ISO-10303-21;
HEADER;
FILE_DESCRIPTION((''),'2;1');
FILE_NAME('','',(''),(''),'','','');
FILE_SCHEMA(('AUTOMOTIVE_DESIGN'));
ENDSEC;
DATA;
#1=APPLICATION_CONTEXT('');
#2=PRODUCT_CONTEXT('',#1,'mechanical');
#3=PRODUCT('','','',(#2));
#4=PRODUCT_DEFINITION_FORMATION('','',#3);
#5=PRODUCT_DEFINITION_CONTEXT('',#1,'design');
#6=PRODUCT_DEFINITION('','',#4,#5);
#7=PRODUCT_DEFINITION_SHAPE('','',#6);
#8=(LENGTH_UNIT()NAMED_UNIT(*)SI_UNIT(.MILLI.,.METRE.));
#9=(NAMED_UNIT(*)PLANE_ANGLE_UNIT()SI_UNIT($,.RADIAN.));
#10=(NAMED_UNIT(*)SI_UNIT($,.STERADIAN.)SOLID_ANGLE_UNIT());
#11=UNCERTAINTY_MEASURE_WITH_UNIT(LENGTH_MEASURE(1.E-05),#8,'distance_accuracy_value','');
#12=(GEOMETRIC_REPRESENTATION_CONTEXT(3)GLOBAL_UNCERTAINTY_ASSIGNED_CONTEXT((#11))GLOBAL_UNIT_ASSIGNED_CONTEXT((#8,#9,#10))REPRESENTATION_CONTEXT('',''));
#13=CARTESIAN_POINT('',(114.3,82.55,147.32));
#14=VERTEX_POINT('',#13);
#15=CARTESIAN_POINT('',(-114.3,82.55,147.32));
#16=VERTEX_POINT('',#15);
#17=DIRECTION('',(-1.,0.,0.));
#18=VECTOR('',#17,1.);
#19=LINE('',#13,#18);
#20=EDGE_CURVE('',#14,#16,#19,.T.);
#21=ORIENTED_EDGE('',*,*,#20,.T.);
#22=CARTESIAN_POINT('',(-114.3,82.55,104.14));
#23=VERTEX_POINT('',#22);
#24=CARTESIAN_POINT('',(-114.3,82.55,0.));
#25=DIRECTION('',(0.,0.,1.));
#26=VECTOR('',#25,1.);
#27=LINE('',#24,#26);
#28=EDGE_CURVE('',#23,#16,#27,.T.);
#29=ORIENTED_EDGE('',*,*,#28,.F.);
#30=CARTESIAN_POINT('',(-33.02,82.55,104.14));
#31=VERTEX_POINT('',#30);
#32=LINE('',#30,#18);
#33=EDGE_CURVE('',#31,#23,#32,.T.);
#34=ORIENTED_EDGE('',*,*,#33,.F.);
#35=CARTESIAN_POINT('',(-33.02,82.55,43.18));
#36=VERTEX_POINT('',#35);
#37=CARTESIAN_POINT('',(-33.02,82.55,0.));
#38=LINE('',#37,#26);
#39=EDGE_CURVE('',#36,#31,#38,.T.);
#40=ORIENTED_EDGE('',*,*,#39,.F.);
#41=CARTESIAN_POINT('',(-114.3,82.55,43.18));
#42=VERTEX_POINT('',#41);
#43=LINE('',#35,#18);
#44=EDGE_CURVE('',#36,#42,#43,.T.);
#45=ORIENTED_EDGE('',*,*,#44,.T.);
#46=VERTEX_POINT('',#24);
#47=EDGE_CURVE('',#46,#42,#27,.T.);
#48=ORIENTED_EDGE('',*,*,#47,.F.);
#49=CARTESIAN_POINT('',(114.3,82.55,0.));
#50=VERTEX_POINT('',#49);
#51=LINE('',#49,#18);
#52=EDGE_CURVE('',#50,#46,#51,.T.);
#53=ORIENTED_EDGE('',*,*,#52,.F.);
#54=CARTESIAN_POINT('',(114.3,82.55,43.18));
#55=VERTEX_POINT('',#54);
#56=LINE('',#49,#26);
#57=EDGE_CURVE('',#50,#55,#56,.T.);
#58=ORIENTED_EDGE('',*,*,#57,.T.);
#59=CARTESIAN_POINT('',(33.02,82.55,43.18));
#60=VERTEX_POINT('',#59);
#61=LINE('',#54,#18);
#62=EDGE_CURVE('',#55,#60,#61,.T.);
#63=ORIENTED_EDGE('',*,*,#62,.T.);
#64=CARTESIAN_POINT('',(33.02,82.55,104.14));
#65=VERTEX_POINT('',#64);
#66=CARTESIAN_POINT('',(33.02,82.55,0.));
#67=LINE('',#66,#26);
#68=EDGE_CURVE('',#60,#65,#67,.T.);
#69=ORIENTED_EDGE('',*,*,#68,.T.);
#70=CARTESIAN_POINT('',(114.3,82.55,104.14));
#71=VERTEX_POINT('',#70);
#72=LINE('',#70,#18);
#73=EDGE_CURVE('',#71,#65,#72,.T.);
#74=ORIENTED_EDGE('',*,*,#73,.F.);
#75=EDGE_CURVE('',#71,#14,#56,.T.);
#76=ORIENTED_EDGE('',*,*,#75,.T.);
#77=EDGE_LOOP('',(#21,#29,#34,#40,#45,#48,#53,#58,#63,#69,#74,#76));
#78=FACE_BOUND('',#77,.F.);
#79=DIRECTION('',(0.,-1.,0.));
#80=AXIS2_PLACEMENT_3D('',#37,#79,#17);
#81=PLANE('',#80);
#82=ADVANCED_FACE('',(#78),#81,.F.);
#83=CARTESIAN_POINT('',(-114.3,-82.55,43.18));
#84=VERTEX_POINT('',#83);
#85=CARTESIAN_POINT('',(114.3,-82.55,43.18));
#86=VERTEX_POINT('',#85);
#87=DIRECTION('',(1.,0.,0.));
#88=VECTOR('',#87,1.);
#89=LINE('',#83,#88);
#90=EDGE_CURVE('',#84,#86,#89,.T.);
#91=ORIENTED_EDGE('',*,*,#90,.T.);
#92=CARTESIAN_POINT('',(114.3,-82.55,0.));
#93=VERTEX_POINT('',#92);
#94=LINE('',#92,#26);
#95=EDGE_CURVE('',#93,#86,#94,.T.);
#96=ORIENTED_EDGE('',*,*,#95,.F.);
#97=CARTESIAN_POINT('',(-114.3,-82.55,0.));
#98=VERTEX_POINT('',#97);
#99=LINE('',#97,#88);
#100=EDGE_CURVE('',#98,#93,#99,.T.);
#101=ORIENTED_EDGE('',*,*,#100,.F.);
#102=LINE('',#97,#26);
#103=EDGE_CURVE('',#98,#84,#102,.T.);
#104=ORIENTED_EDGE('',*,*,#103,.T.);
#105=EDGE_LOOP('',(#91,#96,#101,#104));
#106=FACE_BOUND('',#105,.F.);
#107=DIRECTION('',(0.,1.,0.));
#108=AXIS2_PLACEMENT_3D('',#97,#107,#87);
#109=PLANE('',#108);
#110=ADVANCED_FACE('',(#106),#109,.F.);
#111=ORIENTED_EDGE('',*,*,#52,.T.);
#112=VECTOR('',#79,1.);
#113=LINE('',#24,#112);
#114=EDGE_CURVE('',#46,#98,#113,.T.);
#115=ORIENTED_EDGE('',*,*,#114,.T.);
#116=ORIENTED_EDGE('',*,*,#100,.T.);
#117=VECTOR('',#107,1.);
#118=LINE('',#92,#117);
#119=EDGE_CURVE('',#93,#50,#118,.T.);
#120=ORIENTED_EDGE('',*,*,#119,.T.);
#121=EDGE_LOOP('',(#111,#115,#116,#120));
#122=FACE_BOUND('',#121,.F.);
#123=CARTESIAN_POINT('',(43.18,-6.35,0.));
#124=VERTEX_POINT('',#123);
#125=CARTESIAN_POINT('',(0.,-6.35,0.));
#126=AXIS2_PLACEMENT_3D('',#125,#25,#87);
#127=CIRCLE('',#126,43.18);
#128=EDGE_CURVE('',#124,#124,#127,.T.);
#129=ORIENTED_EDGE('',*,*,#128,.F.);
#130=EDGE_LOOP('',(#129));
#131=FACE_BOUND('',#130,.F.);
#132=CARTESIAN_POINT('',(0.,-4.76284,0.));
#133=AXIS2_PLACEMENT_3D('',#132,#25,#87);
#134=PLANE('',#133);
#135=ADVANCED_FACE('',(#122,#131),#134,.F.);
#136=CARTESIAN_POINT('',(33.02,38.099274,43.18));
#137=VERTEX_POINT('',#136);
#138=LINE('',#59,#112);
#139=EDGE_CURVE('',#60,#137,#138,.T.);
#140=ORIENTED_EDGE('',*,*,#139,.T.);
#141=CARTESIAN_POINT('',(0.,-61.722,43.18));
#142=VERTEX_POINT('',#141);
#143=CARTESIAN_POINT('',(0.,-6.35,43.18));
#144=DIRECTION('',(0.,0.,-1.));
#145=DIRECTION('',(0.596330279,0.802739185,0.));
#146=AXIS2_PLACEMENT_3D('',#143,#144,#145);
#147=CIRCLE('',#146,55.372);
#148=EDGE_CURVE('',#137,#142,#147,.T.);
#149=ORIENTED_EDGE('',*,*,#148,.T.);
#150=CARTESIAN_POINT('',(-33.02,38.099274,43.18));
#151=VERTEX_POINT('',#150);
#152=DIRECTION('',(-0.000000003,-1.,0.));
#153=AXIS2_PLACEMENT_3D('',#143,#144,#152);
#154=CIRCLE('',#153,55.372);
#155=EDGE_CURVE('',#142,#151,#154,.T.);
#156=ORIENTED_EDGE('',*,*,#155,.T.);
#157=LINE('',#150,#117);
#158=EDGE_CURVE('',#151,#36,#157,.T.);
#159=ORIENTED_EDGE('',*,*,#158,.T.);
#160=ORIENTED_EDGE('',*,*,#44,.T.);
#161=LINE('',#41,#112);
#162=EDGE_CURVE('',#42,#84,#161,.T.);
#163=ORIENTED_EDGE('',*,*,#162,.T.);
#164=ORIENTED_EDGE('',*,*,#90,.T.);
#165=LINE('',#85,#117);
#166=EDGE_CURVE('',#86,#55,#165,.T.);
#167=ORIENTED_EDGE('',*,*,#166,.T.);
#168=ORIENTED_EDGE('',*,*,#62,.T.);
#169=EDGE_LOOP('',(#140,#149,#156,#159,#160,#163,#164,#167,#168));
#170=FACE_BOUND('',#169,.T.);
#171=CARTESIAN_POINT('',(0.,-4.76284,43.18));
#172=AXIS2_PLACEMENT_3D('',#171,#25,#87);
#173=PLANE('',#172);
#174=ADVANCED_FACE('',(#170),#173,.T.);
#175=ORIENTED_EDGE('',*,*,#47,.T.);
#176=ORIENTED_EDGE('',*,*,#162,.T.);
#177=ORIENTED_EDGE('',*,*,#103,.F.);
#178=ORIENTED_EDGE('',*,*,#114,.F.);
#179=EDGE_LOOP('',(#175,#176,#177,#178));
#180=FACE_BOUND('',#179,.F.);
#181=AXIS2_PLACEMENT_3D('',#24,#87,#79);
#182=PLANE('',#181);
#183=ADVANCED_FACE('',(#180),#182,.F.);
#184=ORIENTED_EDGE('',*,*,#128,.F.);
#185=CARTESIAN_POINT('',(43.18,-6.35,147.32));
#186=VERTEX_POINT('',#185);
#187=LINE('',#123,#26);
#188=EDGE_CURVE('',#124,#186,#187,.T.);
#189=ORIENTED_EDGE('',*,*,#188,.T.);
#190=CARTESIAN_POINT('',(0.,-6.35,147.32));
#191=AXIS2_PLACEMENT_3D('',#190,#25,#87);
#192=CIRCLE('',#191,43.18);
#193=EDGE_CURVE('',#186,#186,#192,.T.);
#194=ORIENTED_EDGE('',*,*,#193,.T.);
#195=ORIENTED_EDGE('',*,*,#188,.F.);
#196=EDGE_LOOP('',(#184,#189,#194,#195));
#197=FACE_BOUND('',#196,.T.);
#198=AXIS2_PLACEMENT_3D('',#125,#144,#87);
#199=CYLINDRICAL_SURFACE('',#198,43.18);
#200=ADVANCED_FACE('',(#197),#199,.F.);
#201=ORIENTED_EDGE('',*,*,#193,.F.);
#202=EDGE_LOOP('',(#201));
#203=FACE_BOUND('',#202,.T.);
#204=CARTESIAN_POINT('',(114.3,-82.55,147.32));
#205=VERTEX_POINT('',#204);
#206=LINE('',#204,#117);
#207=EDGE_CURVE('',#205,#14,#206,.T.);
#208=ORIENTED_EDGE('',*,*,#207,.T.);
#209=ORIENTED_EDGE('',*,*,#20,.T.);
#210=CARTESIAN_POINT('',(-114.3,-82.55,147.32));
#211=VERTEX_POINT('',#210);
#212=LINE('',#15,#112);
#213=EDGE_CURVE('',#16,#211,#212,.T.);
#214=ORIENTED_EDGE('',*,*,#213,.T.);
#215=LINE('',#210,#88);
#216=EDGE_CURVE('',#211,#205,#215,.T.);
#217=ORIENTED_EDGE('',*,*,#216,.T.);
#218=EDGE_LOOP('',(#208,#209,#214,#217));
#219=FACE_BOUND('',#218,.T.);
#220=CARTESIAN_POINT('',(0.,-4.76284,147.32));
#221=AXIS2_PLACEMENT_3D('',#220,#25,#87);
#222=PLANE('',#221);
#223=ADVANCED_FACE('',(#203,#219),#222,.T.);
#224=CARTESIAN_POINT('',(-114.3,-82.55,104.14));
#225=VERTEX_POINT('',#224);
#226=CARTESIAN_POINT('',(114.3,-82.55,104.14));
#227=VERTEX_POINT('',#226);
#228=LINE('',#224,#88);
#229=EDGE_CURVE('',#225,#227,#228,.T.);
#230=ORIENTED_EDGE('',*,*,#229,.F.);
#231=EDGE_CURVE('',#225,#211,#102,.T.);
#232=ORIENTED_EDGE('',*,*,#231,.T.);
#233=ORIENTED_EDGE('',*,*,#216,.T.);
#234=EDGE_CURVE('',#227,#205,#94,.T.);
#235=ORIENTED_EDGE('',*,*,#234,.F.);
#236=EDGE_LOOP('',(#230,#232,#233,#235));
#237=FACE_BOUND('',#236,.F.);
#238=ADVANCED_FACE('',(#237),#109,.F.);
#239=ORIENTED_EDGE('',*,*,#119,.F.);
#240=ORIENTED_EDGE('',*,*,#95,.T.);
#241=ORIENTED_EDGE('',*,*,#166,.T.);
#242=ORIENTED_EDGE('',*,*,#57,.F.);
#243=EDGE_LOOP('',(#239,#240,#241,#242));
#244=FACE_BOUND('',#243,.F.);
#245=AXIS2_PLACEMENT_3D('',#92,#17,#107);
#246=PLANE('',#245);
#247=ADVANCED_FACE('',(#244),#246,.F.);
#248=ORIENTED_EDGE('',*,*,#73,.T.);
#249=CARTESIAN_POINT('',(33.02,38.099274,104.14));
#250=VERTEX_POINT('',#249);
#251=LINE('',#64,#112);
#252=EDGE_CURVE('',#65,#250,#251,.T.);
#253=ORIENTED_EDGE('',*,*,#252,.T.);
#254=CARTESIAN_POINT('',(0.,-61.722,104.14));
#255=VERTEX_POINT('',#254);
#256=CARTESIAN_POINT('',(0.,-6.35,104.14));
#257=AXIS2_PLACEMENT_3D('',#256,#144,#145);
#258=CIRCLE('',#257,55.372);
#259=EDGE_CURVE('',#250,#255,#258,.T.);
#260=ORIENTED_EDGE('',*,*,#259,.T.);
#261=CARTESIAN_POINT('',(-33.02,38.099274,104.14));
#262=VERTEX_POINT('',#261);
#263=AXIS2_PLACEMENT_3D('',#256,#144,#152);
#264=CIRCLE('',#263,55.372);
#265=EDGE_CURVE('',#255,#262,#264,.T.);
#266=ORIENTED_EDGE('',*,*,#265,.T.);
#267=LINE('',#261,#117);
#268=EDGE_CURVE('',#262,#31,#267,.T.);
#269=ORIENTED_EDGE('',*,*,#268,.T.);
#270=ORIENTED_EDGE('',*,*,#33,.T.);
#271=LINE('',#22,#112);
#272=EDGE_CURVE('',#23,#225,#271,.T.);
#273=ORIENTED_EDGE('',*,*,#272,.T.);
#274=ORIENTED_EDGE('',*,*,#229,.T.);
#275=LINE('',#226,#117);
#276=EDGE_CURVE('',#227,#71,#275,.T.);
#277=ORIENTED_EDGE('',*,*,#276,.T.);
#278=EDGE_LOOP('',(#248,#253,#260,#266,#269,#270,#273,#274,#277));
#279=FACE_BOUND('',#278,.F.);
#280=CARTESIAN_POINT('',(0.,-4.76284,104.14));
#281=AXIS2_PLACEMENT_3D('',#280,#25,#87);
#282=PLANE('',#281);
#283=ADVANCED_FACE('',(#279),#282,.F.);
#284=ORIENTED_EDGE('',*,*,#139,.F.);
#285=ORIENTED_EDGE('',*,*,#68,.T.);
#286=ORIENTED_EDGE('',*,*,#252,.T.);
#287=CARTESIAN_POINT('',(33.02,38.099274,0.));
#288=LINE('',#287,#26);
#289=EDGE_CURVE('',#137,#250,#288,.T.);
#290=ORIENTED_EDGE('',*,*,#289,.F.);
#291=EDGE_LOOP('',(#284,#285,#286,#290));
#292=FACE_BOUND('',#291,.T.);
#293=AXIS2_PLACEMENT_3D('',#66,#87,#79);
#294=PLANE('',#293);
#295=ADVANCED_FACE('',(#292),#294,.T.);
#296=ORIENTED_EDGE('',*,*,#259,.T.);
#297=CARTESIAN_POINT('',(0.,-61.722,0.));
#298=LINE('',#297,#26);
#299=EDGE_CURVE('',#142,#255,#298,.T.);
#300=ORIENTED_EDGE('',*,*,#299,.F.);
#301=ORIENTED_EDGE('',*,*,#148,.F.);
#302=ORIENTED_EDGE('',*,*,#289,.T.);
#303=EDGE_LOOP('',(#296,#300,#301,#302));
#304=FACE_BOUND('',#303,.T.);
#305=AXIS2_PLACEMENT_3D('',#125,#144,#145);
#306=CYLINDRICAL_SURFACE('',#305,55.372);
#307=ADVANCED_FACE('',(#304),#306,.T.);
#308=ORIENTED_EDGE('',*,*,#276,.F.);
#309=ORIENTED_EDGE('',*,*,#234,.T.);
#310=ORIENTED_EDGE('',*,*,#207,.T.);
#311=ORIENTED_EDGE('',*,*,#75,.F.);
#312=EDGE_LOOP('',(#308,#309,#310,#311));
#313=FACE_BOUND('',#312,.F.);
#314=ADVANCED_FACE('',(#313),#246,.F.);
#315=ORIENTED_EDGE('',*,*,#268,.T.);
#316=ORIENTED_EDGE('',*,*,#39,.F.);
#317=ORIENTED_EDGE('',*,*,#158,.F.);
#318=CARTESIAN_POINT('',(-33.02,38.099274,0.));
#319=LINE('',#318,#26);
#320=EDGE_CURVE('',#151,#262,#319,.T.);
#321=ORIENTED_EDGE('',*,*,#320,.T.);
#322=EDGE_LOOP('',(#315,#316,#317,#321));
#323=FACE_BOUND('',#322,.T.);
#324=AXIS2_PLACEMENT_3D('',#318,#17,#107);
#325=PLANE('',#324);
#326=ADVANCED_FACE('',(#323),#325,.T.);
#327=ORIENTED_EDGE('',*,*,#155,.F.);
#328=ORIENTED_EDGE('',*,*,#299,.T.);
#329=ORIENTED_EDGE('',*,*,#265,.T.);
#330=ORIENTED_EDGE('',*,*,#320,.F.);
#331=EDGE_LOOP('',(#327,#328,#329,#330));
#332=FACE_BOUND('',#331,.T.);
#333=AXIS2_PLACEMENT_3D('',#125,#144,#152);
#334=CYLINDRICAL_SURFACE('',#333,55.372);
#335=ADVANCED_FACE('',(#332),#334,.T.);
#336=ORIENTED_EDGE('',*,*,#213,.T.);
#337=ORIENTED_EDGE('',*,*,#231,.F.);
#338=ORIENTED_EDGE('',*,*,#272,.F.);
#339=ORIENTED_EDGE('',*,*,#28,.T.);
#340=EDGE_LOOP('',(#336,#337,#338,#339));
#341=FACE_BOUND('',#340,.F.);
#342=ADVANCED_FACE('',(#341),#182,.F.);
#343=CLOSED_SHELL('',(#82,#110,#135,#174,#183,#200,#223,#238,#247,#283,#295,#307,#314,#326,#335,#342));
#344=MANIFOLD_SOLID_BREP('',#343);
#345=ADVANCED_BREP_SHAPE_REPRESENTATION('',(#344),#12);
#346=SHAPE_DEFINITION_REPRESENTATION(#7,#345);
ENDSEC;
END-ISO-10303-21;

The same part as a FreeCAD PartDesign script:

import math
import FreeCAD as App
import Part
import Sketcher
Q = App.Units.Quantity

doc = App.newDocument("Part")
body = doc.addObject("PartDesign::Body", "Body")

# Sketch on XY plane
sketch1 = body.newObject("Sketcher::SketchObject", "Sketch")
sketch1.AttachmentSupport = (doc.getObject("XY_Plane"), [""])
sketch1.MapMode = "FlatFace"
sketch1.addGeometry([
    Part.LineSegment(App.Vector(-114, 83, 0), App.Vector(-114, -83, 0)),  # 0
    Part.LineSegment(App.Vector(-114, -83, 0), App.Vector(114, -83, 0)),  # 1
    Part.LineSegment(App.Vector(114, -83, 0), App.Vector(114, 83, 0)),  # 2
    Part.LineSegment(App.Vector(114, 83, 0), App.Vector(-114, 83, 0)),  # 3
    Part.Circle(App.Vector(0, -6, 0), App.Vector(0, 0, 1), 43),  # 4
], False)
sketch1.addConstraint([
    Sketcher.Constraint("Coincident", 0, 2, 1, 1),
    Sketcher.Constraint("Coincident", 1, 2, 2, 1),
    Sketcher.Constraint("Coincident", 2, 2, 3, 1),
    Sketcher.Constraint("Coincident", 3, 2, 0, 1),
    Sketcher.Constraint("Vertical", 0),
    Sketcher.Constraint("Horizontal", 1),
    Sketcher.Constraint("Vertical", 2),
    Sketcher.Constraint("Horizontal", 3),
    Sketcher.Constraint("Symmetric", 0, 2, 2, 2, -1, 1),
    Sketcher.Constraint("PointOnObject", 4, 3, -2),
    Sketcher.Constraint("Diameter", 4, Q("3.4 in")),
    Sketcher.Constraint("DistanceX", 1, 1, 1, 2, Q("9 in")),
    Sketcher.Constraint("DistanceY", 0, 2, 0, 1, Q("6.5 in")),
    Sketcher.Constraint("DistanceY", 0, 2, 4, 3, Q("3 in")),
])
pad1 = body.newObject("PartDesign::Pad", "Pad")
pad1.Profile = sketch1
pad1.Length = Q("5.8 in")

# Sketch on XY plane
sketch2 = body.newObject("Sketcher::SketchObject", "Sketch001")
sketch2.AttachmentSupport = (doc.getObject("XY_Plane"), [""])
sketch2.MapMode = "FlatFace"
sketch2.addGeometry([
    Part.LineSegment(App.Vector(-114, 83, 0), App.Vector(-114, -83, 0)),  # 0
    Part.LineSegment(App.Vector(-114, -83, 0), App.Vector(114, -83, 0)),  # 1
    Part.LineSegment(App.Vector(114, -83, 0), App.Vector(114, 83, 0)),  # 2
    Part.LineSegment(App.Vector(114, 83, 0), App.Vector(33, 83, 0)),  # 3
    Part.LineSegment(App.Vector(33, 83, 0), App.Vector(33, 38, 0)),  # 4
    Part.ArcOfCircle(Part.Circle(App.Vector(0, -6, 0), App.Vector(0, 0, 1), 55), math.radians(-90), math.radians(53)),  # 5
    Part.ArcOfCircle(Part.Circle(App.Vector(0, -6, 0), App.Vector(0, 0, 1), 55), math.radians(127), math.radians(270)),  # 6
    Part.LineSegment(App.Vector(-33, 38, 0), App.Vector(-33, 83, 0)),  # 7
    Part.LineSegment(App.Vector(-33, 83, 0), App.Vector(-114, 83, 0)),  # 8
], False)
sketch2.addConstraint([
    Sketcher.Constraint("Coincident", 0, 2, 1, 1),
    Sketcher.Constraint("Coincident", 1, 2, 2, 1),
    Sketcher.Constraint("Coincident", 2, 2, 3, 1),
    Sketcher.Constraint("Coincident", 3, 2, 4, 1),
    Sketcher.Constraint("Coincident", 4, 2, 5, 2),
    Sketcher.Constraint("Tangent", 5, 1, 6, 2),
    Sketcher.Constraint("Coincident", 6, 1, 7, 1),
    Sketcher.Constraint("Coincident", 7, 2, 8, 1),
    Sketcher.Constraint("Coincident", 8, 2, 0, 1),
    Sketcher.Constraint("Vertical", 0),
    Sketcher.Constraint("Horizontal", 1),
    Sketcher.Constraint("Vertical", 2),
    Sketcher.Constraint("Horizontal", 3),
    Sketcher.Constraint("Vertical", 4),
    Sketcher.Constraint("Vertical", 7),
    Sketcher.Constraint("Horizontal", 8),
    Sketcher.Constraint("Equal", 5, 6),
    Sketcher.Constraint("Symmetric", 0, 2, 2, 2, -1, 1),
    Sketcher.Constraint("Symmetric", 4, 2, 6, 1, -2),
    Sketcher.Constraint("PointOnObject", 5, 1, -2),
    Sketcher.Constraint("Horizontal", 3, 2, 7, 2),
    Sketcher.Constraint("DistanceX", 1, 1, 1, 2, Q("9 in")),
    Sketcher.Constraint("Radius", 5, Q("2.18 in")),
    Sketcher.Constraint("DistanceX", 3, 2, 3, 1, Q("3.2 in")),
    Sketcher.Constraint("DistanceY", 0, 2, 0, 1, Q("6.5 in")),
    Sketcher.Constraint("DistanceY", 0, 2, 5, 3, Q("3 in")),
])
pocket1 = body.newObject("PartDesign::Pocket", "Pocket")
pocket1.Profile = sketch2
pocket1.Length = Q("4.1 in")
pocket1.Reversed = True

# Sketch on XY plane
sketch3 = body.newObject("Sketcher::SketchObject", "Sketch002")
sketch3.AttachmentSupport = (doc.getObject("XY_Plane"), [""])
sketch3.MapMode = "FlatFace"
sketch3.addGeometry([
    Part.LineSegment(App.Vector(-114, 83, 0), App.Vector(-114, -83, 0)),  # 0
    Part.LineSegment(App.Vector(-114, -83, 0), App.Vector(114, -83, 0)),  # 1
    Part.LineSegment(App.Vector(114, -83, 0), App.Vector(114, 83, 0)),  # 2
    Part.LineSegment(App.Vector(114, 83, 0), App.Vector(33, 83, 0)),  # 3
    Part.LineSegment(App.Vector(33, 83, 0), App.Vector(33, 38, 0)),  # 4
    Part.ArcOfCircle(Part.Circle(App.Vector(0, -6, 0), App.Vector(0, 0, 1), 55), math.radians(-90), math.radians(53)),  # 5
    Part.ArcOfCircle(Part.Circle(App.Vector(0, -6, 0), App.Vector(0, 0, 1), 55), math.radians(127), math.radians(270)),  # 6
    Part.LineSegment(App.Vector(-33, 38, 0), App.Vector(-33, 83, 0)),  # 7
    Part.LineSegment(App.Vector(-33, 83, 0), App.Vector(-114, 83, 0)),  # 8
], False)
sketch3.addConstraint([
    Sketcher.Constraint("Coincident", 0, 2, 1, 1),
    Sketcher.Constraint("Coincident", 1, 2, 2, 1),
    Sketcher.Constraint("Coincident", 2, 2, 3, 1),
    Sketcher.Constraint("Coincident", 3, 2, 4, 1),
    Sketcher.Constraint("Coincident", 4, 2, 5, 2),
    Sketcher.Constraint("Tangent", 5, 1, 6, 2),
    Sketcher.Constraint("Coincident", 6, 1, 7, 1),
    Sketcher.Constraint("Coincident", 7, 2, 8, 1),
    Sketcher.Constraint("Coincident", 8, 2, 0, 1),
    Sketcher.Constraint("Vertical", 0),
    Sketcher.Constraint("Horizontal", 1),
    Sketcher.Constraint("Vertical", 2),
    Sketcher.Constraint("Horizontal", 3),
    Sketcher.Constraint("Vertical", 4),
    Sketcher.Constraint("Vertical", 7),
    Sketcher.Constraint("Horizontal", 8),
    Sketcher.Constraint("Equal", 5, 6),
    Sketcher.Constraint("Symmetric", 0, 2, 2, 2, -1, 1),
    Sketcher.Constraint("Symmetric", 4, 2, 6, 1, -2),
    Sketcher.Constraint("PointOnObject", 5, 1, -2),
    Sketcher.Constraint("Horizontal", 3, 2, 7, 2),
    Sketcher.Constraint("DistanceX", 1, 1, 1, 2, Q("9 in")),
    Sketcher.Constraint("Radius", 5, Q("2.18 in")),
    Sketcher.Constraint("DistanceX", 3, 2, 3, 1, Q("3.2 in")),
    Sketcher.Constraint("DistanceY", 0, 2, 0, 1, Q("6.5 in")),
    Sketcher.Constraint("DistanceY", 0, 2, 5, 3, Q("3 in")),
])
pad2 = body.newObject("PartDesign::Pad", "Pad001")
pad2.Profile = sketch3
pad2.Length = Q("1.7 in")

doc.recompute()
